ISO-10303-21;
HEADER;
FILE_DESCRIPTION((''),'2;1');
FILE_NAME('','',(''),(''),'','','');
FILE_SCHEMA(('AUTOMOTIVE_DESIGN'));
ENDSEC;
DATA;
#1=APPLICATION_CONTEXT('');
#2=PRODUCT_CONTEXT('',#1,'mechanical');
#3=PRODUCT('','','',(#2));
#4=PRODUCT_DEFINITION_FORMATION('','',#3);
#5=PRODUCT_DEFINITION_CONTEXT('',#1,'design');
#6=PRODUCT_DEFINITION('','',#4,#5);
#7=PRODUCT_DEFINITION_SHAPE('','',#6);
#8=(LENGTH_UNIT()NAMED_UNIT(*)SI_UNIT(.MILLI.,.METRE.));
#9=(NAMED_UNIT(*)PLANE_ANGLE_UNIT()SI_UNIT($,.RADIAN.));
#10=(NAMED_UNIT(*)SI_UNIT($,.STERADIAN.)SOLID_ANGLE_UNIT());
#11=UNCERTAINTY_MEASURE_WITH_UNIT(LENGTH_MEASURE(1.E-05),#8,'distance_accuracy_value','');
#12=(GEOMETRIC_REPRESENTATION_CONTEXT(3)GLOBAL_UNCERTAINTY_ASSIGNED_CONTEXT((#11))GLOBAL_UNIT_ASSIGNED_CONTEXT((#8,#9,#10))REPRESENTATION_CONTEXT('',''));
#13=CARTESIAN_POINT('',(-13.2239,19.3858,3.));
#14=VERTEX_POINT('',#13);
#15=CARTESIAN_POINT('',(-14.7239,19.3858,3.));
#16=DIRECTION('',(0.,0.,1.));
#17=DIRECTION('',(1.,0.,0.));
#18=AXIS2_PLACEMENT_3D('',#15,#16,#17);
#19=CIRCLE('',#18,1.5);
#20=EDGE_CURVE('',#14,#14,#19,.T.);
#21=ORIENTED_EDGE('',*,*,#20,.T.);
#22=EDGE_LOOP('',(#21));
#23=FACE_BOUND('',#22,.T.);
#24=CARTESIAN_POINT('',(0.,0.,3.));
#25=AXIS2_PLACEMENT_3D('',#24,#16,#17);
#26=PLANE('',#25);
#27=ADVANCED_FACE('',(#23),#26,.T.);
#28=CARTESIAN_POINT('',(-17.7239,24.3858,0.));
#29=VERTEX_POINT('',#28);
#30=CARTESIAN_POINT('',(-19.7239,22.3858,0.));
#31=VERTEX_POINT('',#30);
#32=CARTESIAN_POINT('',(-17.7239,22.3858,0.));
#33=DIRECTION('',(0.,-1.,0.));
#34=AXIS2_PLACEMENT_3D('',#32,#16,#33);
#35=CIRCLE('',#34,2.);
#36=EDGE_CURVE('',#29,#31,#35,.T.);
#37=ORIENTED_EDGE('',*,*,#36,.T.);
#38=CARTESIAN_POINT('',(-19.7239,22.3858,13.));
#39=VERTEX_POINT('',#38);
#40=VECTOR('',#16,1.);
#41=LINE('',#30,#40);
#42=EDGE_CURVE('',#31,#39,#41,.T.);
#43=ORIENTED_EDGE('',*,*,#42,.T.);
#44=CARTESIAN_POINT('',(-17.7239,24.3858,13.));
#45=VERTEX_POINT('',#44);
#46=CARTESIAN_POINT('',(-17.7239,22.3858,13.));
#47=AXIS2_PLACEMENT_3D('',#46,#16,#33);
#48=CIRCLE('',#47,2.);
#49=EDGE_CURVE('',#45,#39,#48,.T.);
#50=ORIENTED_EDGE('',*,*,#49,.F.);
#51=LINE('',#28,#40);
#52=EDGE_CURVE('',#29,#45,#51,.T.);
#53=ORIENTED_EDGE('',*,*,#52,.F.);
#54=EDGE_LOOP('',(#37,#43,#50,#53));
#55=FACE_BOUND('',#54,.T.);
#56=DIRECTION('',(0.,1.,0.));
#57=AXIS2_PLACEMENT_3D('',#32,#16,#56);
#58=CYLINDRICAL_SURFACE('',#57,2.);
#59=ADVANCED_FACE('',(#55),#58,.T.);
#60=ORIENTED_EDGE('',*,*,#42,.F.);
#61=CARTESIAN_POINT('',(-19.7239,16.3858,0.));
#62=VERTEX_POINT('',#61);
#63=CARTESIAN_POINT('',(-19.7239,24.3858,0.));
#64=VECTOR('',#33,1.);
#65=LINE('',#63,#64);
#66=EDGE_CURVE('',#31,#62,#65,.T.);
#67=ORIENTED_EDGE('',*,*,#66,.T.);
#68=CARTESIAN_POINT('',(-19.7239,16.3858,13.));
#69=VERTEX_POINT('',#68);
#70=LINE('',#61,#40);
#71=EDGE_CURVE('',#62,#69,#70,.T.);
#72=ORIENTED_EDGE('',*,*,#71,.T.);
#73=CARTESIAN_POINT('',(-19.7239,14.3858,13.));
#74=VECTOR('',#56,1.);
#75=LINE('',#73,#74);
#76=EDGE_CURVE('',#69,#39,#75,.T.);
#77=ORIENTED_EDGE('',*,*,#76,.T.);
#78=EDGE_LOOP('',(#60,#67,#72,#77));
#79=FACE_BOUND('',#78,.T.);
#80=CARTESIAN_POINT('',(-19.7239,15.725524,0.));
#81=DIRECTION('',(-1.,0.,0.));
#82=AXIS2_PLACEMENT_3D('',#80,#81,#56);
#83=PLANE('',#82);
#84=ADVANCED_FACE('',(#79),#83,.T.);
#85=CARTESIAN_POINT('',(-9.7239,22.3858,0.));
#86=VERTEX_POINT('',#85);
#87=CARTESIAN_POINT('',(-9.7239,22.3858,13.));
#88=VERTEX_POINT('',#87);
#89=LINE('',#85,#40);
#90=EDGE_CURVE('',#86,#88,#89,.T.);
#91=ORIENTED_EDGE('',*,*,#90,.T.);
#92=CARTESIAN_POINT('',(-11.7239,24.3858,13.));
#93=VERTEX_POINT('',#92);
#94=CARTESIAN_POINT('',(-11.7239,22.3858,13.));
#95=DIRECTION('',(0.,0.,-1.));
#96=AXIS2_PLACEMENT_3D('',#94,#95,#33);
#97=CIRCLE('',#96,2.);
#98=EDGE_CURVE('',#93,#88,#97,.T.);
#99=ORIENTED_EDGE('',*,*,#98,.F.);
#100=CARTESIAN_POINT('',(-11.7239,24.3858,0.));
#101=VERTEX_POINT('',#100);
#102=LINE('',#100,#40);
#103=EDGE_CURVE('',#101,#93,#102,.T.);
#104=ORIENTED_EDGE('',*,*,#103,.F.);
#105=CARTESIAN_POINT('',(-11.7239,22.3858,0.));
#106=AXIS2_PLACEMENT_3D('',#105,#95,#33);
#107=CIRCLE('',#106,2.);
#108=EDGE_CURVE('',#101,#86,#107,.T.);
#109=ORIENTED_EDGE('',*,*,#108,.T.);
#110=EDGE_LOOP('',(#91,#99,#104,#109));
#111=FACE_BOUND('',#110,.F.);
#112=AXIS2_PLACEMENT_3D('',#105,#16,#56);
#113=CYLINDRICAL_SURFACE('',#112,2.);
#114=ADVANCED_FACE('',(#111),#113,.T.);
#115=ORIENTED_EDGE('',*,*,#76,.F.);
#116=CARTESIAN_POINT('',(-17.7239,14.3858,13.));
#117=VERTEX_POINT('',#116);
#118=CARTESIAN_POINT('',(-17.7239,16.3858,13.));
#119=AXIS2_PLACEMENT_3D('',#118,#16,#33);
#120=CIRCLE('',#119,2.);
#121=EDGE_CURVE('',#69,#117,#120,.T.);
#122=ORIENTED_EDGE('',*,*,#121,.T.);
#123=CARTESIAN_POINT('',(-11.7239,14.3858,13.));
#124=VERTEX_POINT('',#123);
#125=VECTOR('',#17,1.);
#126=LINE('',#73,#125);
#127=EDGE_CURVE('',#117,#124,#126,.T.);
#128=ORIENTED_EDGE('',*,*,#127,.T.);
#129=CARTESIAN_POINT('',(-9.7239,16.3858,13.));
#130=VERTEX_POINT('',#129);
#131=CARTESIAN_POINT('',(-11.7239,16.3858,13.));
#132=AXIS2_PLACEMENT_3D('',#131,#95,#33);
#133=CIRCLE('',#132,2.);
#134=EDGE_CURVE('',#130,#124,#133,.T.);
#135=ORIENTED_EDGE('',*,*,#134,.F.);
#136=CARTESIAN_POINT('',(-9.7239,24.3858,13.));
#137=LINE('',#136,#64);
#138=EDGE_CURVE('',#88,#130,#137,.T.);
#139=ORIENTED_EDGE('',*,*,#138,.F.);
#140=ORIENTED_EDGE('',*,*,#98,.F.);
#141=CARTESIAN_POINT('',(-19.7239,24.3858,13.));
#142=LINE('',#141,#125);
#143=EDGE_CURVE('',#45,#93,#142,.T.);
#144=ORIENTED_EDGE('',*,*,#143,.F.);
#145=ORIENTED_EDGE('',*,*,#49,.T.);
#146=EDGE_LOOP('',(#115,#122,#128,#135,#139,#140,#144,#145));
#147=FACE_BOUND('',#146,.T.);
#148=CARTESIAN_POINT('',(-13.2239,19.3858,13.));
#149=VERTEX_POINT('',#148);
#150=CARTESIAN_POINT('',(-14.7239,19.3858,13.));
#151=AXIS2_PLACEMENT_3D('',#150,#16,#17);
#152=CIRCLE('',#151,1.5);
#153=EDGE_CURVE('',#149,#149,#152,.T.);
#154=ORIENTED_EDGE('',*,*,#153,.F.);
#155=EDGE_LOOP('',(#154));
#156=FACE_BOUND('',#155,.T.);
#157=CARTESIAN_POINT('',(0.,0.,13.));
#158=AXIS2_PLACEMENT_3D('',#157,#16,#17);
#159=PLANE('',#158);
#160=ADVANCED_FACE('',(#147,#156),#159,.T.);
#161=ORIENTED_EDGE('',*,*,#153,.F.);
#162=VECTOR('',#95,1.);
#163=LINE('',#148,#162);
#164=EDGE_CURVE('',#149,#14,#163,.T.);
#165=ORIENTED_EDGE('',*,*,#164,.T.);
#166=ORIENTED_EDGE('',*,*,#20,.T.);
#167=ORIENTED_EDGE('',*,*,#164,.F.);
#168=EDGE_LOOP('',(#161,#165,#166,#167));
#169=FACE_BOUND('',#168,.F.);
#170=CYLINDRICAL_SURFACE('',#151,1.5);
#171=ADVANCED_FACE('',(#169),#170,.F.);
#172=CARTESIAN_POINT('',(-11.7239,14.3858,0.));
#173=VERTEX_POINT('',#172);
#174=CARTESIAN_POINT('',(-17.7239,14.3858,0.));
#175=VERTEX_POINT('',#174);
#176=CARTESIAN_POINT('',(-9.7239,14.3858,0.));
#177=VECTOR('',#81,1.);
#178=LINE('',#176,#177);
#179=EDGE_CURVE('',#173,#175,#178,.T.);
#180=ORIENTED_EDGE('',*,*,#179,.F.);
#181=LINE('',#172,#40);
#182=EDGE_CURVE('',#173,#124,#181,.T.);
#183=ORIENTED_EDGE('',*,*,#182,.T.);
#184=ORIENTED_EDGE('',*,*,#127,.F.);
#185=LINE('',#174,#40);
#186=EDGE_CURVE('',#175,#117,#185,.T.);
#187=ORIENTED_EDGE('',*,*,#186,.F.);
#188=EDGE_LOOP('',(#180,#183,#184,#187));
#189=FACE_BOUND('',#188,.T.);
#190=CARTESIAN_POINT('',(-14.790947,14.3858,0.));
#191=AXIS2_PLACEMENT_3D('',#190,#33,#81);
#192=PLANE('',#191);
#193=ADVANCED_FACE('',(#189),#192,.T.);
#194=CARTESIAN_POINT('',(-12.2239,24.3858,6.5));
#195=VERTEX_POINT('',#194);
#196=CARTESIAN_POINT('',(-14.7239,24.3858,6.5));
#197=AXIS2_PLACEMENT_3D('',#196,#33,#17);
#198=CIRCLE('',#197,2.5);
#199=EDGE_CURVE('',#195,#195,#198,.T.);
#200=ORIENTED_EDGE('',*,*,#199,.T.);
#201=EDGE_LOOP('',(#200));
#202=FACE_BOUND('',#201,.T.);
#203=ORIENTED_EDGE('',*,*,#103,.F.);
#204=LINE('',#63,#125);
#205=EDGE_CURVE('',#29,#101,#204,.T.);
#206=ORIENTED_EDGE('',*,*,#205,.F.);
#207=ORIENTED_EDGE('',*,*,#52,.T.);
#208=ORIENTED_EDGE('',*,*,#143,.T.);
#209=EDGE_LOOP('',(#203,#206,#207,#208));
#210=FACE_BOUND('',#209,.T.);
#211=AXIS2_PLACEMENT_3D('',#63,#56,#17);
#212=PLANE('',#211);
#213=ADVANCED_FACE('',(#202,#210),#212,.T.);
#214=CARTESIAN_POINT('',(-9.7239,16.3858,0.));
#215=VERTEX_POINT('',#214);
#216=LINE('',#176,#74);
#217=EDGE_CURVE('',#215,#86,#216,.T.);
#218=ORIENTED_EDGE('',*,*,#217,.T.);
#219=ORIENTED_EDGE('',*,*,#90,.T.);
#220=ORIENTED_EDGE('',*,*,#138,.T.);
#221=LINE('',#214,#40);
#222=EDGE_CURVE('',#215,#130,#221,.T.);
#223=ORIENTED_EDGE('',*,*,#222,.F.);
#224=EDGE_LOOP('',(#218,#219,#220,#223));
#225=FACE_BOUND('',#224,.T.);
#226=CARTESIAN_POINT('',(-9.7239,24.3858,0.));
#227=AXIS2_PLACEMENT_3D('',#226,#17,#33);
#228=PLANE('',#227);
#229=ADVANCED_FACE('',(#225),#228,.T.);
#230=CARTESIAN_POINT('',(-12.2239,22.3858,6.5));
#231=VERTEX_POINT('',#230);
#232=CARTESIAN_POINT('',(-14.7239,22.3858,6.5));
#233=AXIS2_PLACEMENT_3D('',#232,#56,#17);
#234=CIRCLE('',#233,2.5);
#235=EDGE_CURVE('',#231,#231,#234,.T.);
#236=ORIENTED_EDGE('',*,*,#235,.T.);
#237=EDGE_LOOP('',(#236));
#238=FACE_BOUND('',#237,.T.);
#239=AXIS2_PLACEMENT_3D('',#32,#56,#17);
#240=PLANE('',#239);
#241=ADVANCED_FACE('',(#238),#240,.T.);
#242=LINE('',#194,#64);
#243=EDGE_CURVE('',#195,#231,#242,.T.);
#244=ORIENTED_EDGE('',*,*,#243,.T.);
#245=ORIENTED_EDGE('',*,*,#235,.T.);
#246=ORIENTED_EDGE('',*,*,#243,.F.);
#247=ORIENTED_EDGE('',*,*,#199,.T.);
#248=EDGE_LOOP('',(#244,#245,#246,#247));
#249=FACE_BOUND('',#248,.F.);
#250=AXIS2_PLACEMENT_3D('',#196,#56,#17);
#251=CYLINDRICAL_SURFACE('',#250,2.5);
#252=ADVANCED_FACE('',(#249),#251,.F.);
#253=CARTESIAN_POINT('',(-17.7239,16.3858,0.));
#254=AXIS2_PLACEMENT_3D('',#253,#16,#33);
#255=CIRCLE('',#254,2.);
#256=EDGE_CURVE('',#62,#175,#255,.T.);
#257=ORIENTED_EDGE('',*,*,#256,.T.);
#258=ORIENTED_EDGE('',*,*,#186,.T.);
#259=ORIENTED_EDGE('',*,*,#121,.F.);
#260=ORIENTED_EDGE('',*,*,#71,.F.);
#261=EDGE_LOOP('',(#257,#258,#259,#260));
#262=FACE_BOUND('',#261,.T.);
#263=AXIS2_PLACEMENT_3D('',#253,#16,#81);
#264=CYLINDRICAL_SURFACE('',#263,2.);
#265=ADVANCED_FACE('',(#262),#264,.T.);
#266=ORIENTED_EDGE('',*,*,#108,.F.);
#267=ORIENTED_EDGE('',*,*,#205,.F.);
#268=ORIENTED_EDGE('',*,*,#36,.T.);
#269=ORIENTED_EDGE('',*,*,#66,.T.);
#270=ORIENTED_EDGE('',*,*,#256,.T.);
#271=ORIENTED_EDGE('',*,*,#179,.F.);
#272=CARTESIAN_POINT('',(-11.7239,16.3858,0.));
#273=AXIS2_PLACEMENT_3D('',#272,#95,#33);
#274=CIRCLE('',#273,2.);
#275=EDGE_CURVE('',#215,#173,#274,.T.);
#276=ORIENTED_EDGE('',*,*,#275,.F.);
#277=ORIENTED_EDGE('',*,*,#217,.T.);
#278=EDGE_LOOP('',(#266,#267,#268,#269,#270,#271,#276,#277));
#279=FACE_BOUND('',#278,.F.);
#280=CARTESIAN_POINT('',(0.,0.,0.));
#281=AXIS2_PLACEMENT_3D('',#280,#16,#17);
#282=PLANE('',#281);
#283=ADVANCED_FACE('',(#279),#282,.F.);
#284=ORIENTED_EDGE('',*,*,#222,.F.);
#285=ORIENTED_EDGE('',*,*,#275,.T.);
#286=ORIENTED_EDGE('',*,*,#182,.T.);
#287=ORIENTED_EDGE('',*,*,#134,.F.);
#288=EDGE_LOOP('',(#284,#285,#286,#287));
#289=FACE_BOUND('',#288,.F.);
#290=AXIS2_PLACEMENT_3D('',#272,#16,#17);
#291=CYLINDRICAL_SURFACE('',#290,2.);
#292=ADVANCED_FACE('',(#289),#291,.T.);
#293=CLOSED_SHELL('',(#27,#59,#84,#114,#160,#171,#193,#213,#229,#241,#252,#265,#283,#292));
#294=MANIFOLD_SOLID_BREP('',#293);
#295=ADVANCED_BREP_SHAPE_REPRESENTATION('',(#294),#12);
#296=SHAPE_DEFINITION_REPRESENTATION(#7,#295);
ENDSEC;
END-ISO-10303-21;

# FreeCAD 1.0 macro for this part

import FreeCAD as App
import Part
import Sketcher

V = App.Vector


def edges_at(feature, points):
    """Names of the edges that pass closest to the given points."""
    edges = feature.Shape.Edges
    near = lambda p: min(range(len(edges)), key=lambda i: edges[i].distToShape(Part.Vertex(*p))[0])
    return sorted({f"Edge{near(p) + 1}" for p in points})

doc = App.newDocument("Part")
body = doc.addObject("PartDesign::Body", "Body")

# Sketch on XY plane
sketch1 = doc.addObject("Sketcher::SketchObject", "Sketch")
body.addObject(sketch1)
sketch1.AttachmentSupport = (doc.XY_Plane, [""])
sketch1.MapMode = "FlatFace"
sketch1.addGeometry([
    Part.LineSegment(V(-10, 24, 0), V(-20, 24, 0)),
    Part.LineSegment(V(-20, 24, 0), V(-20, 14, 0)),
    Part.LineSegment(V(-20, 14, 0), V(-10, 14, 0)),
    Part.LineSegment(V(-10, 14, 0), V(-10, 24, 0)),
], False)
sketch1.addConstraint([
    Sketcher.Constraint("Coincident", 0, 2, 1, 1),
    Sketcher.Constraint("Coincident", 1, 2, 2, 1),
    Sketcher.Constraint("Coincident", 2, 2, 3, 1),
    Sketcher.Constraint("Coincident", 3, 2, 0, 1),
    Sketcher.Constraint("Horizontal", 0),
    Sketcher.Constraint("Vertical", 1),
    Sketcher.Constraint("Horizontal", 2),
    Sketcher.Constraint("Vertical", 3),
    Sketcher.Constraint("Equal", 2, 1),
    Sketcher.Constraint("DistanceX", 0, 2, 0, 1, 10.0),
    Sketcher.Constraint("DistanceX", 0, 2, -1, 1, 19.724),
    Sketcher.Constraint("DistanceY", -1, 1, 0, 2, 24.3858),
])
pad1 = doc.addObject("PartDesign::Pad", "Pad")
body.addObject(pad1)
pad1.Profile = sketch1
pad1.Length = 13
doc.recompute()

fillet = doc.addObject("PartDesign::Fillet", "Fillet")
body.addObject(fillet)
fillet.Base = (pad1, edges_at(pad1, [
    (-9.724, 24.386, 6.5),
    (-9.724, 14.386, 6.5),
    (-19.724, 24.386, 6.5),
    (-19.724, 14.386, 6.5),
]))
fillet.Radius = 2

# Sketch on XY plane
sketch2 = doc.addObject("Sketcher::SketchObject", "Sketch001")
body.addObject(sketch2)
sketch2.AttachmentSupport = (doc.XY_Plane, [""])
sketch2.MapMode = "FlatFace"
sketch2.AttachmentOffset = App.Placement(V(0, 0, 13), App.Rotation())
sketch2.addGeometry(Part.Circle(V(-14.7, 19.4, 0), V(0, 0, 1), 1.5), False)
sketch2.addConstraint([
    Sketcher.Constraint("Diameter", 0, 3.0),
    Sketcher.Constraint("DistanceX", 0, 3, -1, 1, 14.724),
    Sketcher.Constraint("DistanceY", -1, 1, 0, 3, 19.3858),
])
pocket1 = doc.addObject("PartDesign::Pocket", "Pocket")
body.addObject(pocket1)
pocket1.Profile = sketch2
pocket1.Length = 10

# Sketch on XZ plane
sketch3 = doc.addObject("Sketcher::SketchObject", "Sketch002")
body.addObject(sketch3)
sketch3.AttachmentSupport = (doc.XZ_Plane, [""])
sketch3.MapMode = "FlatFace"
sketch3.AttachmentOffset = App.Placement(V(0, 0, -24.3858), App.Rotation())
sketch3.addGeometry(Part.Circle(V(-14.7, 6.5, 0), V(0, 0, 1), 2.5), False)
sketch3.addConstraint([
    Sketcher.Constraint("Diameter", 0, 5.0),
    Sketcher.Constraint("DistanceY", -1, 1, 0, 3, 6.5),
    Sketcher.Constraint("DistanceX", 0, 3, -1, 1, 14.724),
])
pocket2 = doc.addObject("PartDesign::Pocket", "Pocket001")
body.addObject(pocket2)
pocket2.Profile = sketch3
pocket2.Length = 2
pocket2.Reversed = True

doc.recompute()
